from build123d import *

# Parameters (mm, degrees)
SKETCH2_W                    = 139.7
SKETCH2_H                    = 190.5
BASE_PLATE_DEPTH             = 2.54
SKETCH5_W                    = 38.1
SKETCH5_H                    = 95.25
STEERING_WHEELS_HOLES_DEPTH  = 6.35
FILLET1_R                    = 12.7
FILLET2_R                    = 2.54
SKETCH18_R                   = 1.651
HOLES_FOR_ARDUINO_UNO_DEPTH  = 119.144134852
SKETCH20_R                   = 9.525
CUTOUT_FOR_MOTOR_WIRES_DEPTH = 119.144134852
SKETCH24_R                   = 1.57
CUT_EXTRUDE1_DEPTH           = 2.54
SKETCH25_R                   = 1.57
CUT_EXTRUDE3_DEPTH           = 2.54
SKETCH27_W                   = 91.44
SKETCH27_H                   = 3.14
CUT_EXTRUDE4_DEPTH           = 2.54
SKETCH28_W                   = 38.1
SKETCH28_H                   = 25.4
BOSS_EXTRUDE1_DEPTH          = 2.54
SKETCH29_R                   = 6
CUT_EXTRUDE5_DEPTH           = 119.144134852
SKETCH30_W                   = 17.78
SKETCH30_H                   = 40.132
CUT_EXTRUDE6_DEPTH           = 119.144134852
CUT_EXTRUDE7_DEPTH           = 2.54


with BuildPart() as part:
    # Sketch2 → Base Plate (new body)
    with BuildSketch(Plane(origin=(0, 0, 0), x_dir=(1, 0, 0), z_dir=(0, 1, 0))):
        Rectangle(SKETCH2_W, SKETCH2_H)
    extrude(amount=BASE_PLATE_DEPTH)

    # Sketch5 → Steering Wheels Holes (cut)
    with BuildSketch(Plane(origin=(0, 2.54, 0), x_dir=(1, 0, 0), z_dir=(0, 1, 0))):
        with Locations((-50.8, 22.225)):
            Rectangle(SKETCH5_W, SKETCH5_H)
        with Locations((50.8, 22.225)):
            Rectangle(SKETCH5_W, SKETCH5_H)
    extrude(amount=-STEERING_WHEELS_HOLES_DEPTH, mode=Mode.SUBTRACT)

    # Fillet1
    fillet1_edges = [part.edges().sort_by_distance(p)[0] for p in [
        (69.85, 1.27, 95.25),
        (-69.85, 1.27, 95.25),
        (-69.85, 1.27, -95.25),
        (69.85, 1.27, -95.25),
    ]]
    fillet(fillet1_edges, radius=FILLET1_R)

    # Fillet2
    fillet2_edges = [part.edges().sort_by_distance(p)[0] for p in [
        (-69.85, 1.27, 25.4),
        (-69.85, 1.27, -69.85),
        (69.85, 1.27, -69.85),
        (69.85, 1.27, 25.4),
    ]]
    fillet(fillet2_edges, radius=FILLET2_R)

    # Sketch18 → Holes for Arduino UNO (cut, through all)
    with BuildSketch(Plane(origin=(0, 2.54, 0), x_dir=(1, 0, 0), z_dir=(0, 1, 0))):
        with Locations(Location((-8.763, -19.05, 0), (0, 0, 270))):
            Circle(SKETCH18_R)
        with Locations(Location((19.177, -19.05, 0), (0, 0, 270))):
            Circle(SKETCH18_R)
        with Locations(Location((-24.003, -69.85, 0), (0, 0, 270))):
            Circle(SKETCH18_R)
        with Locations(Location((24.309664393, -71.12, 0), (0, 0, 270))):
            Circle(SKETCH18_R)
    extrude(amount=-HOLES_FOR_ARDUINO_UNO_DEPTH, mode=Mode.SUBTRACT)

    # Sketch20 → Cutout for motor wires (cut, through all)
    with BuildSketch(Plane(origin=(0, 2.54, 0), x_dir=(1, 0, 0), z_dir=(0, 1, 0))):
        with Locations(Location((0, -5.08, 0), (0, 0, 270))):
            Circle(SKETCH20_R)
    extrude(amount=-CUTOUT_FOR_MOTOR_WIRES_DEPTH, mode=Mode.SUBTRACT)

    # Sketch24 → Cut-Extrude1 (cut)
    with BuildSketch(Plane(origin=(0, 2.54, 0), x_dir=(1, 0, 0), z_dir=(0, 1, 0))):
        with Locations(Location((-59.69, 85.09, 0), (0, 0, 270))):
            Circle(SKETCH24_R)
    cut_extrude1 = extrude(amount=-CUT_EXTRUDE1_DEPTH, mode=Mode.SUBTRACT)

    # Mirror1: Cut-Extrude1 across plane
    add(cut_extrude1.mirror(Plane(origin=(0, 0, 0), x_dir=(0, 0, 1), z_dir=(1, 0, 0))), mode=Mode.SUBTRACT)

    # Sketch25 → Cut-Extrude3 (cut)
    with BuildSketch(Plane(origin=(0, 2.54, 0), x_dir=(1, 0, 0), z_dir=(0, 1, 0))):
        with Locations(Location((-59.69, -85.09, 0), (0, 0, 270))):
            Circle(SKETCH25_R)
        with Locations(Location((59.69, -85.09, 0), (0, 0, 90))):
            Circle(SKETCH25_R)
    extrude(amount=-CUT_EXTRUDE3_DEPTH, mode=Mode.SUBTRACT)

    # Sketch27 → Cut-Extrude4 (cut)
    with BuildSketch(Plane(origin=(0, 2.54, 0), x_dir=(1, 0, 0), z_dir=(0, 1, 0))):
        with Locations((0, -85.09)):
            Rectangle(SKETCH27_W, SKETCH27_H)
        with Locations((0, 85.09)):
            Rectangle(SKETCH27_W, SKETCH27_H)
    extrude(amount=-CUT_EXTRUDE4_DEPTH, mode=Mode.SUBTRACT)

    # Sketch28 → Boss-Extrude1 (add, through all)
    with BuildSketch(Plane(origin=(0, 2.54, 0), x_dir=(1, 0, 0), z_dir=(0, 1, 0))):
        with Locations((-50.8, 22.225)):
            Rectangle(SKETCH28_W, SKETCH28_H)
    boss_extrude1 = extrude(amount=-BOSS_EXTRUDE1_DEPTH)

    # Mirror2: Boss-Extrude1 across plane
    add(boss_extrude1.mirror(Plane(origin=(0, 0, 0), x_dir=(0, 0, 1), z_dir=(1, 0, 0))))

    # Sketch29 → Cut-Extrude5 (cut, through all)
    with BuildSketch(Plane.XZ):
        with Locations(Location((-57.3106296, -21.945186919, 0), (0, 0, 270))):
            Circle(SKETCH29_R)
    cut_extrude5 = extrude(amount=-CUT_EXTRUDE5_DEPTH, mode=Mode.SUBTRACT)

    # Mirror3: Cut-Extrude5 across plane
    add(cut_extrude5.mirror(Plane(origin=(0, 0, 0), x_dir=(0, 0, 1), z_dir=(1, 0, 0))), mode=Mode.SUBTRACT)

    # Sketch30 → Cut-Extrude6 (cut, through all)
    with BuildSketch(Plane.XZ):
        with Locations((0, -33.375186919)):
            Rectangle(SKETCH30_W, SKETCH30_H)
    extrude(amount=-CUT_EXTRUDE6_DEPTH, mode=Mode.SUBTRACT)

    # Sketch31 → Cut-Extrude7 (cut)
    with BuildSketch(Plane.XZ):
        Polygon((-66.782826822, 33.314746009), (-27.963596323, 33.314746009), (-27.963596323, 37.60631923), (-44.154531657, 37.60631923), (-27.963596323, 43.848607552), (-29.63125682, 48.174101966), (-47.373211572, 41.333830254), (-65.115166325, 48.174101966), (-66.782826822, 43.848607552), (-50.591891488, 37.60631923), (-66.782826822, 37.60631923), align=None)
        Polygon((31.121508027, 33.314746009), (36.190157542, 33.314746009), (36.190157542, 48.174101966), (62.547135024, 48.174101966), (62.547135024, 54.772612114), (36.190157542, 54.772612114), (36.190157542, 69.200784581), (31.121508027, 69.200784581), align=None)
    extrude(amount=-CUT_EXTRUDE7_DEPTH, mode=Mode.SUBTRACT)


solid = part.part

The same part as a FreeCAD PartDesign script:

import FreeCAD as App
import Part
import Sketcher
from FreeCAD import Vector
Q = App.Units.Quantity


def edges_at(feature, points):
    """Names of the edges that pass closest to the given points."""
    edges = feature.Shape.Edges
    near = lambda p: min(range(len(edges)), key=lambda i: edges[i].distToShape(Part.Vertex(*p))[0])
    return sorted({f"Edge{near(p) + 1}" for p in points})


def add_polygon(sketch, points):
    """Adds a closed chain of lines whose ends are joined by coincident constraints."""
    first, n = sketch.GeometryCount, len(points)
    for a, b in zip(points, points[1:] + points[:1]):
        sketch.addGeometry(Part.LineSegment(App.Vector(*a, 0), App.Vector(*b, 0)), False)
    for i in range(n):
        sketch.addConstraint(Sketcher.Constraint("Coincident", first + i, 2, first + (i + 1) % n, 1))

doc = App.newDocument("Part")
body = doc.addObject("PartDesign::Body", "Body")

# Sketch on XZ plane
sketch1 = body.newObject("Sketcher::SketchObject", "Sketch")
sketch1.AttachmentSupport = (doc.getObject("XZ_Plane"), [""])
sketch1.MapMode = "FlatFace"
add_polygon(sketch1, [(-70, -95), (-70, 95), (70, 95), (70, -95)])  # lines 0-3
sketch1.addConstraint(Sketcher.Constraint("Vertical", 0))
sketch1.addConstraint(Sketcher.Constraint("Horizontal", 1))
sketch1.addConstraint(Sketcher.Constraint("Vertical", 2))
sketch1.addConstraint(Sketcher.Constraint("Horizontal", 3))
sketch1.addConstraint(Sketcher.Constraint("Symmetric", 0, 2, 2, 2, -1, 1))
sketch1.addConstraint(Sketcher.Constraint("DistanceX", 1, 1, 1, 2, Q("5.5 in")))
sketch1.addConstraint(Sketcher.Constraint("DistanceY", 0, 1, 0, 2, Q("7.5 in")))
pad1 = body.newObject("PartDesign::Pad", "Pad")
pad1.Profile = sketch1
pad1.Length = Q("0.1 in")
pad1.Reversed = True

# Sketch on XZ plane
sketch2 = body.newObject("Sketcher::SketchObject", "Sketch001")
sketch2.AttachmentSupport = (doc.getObject("XZ_Plane"), [""])
sketch2.MapMode = "FlatFace"
sketch2.AttachmentOffset = App.Placement(Vector(0, 0, -0.1 * 25.4), App.Rotation())
add_polygon(sketch2, [(-70, -70), (-70, 25), (-32, 25), (-32, -70)])  # lines 0-3
add_polygon(sketch2, [(32, -70), (32, 25), (70, 25), (70, -70)])  # lines 4-7
sketch2.addConstraint(Sketcher.Constraint("Vertical", 0))
sketch2.addConstraint(Sketcher.Constraint("Horizontal", 1))
sketch2.addConstraint(Sketcher.Constraint("Vertical", 2))
sketch2.addConstraint(Sketcher.Constraint("Horizontal", 3))
sketch2.addConstraint(Sketcher.Constraint("Vertical", 4))
sketch2.addConstraint(Sketcher.Constraint("Horizontal", 5))
sketch2.addConstraint(Sketcher.Constraint("Vertical", 6))
sketch2.addConstraint(Sketcher.Constraint("Horizontal", 7))
sketch2.addConstraint(Sketcher.Constraint("Symmetric", 1, 2, 4, 2, -2))
sketch2.addConstraint(Sketcher.Constraint("Symmetric", 3, 2, 6, 2, -2))
sketch2.addConstraint(Sketcher.Constraint("DistanceX", 1, 1, 1, 2, Q("1.5 in")))
sketch2.addConstraint(Sketcher.Constraint("DistanceY", -1, 1, 0, 2, Q("1 in")))
sketch2.addConstraint(Sketcher.Constraint("DistanceX", 0, 2, 4, 2, Q("4 in")))
sketch2.addConstraint(Sketcher.Constraint("DistanceY", 0, 1, 0, 2, Q("3.75 in")))
pocket1 = body.newObject("PartDesign::Pocket", "Pocket")
pocket1.Profile = sketch2
pocket1.Length = Q("0.25 in")
pocket1.Reversed = True
doc.recompute()

fillet = body.newObject("PartDesign::Fillet", "Fillet")
fillet.Base = (pocket1, edges_at(pocket1, [
    (69.85, 1.27, 95.25),
    (-69.85, 1.27, 95.25),
    (-69.85, 1.27, -95.25),
    (69.85, 1.27, -95.25),
]))
fillet.Radius = Q("0.5 in")
doc.recompute()

fillet2 = body.newObject("PartDesign::Fillet", "Fillet001")
fillet2.Base = (fillet, edges_at(fillet, [
    (-69.85, 1.27, 25.4),
    (-69.85, 1.27, -69.85),
    (69.85, 1.27, -69.85),
    (69.85, 1.27, 25.4),
]))
fillet2.Radius = Q("0.1 in")

# Sketch on XZ plane
sketch3 = body.newObject("Sketcher::SketchObject", "Sketch002")
sketch3.AttachmentSupport = (doc.getObject("XZ_Plane"), [""])
sketch3.MapMode = "FlatFace"
sketch3.AttachmentOffset = App.Placement(Vector(0, 0, -0.1 * 25.4), App.Rotation())
sketch3.addGeometry(Part.Circle(Vector(-8.8, 19.1, 0), Vector(0, 0, 1), 1.7), False)
sketch3.addGeometry(Part.Circle(Vector(19.2, 19.1, 0), Vector(0, 0, 1), 1.7), False)
sketch3.addGeometry(Part.Circle(Vector(-24, 69.8, 0), Vector(0, 0, 1), 1.7), False)
sketch3.addGeometry(Part.Circle(Vector(24.3, 71.1, 0), Vector(0, 0, 1), 1.7), False)
sketch3.addConstraint(Sketcher.Constraint("Equal", 0, 1))
sketch3.addConstraint(Sketcher.Constraint("Equal", 1, 2))
sketch3.addConstraint(Sketcher.Constraint("Equal", 2, 3))
sketch3.addConstraint(Sketcher.Constraint("Horizontal", 0, 3, 1, 3))
sketch3.addConstraint(Sketcher.Constraint("Diameter", 0, Q("0.13 in")))
sketch3.addConstraint(Sketcher.Constraint("DistanceY", 0, 3, 2, 3, Q("2 in")))
sketch3.addConstraint(Sketcher.Constraint("DistanceY", -1, 1, 3, 3, Q("2.8 in")))
sketch3.addConstraint(Sketcher.Constraint("DistanceX", 0, 3, 1, 3, Q("1.1 in")))
sketch3.addConstraint(Sketcher.Constraint("DistanceX", 2, 3, 0, 3, Q("0.6 in")))
sketch3.addConstraint(Sketcher.Constraint("DistanceY", -1, 1, 0, 3, Q("0.75 in")))
sketch3.addConstraint(Sketcher.Constraint("DistanceX", 0, 3, -1, 1, Q("0.345 in")))
sketch3.addConstraint(Sketcher.Constraint("DistanceX", -1, 1, 3, 3, Q("24.309664 mm")))
pocket2 = body.newObject("PartDesign::Pocket", "Pocket001")
pocket2.Profile = sketch3
pocket2.Type = "ThroughAll"
pocket2.Reversed = True

# Sketch on XZ plane
sketch4 = body.newObject("Sketcher::SketchObject", "Sketch003")
sketch4.AttachmentSupport = (doc.getObject("XZ_Plane"), [""])
sketch4.MapMode = "FlatFace"
sketch4.AttachmentOffset = App.Placement(Vector(0, 0, -0.1 * 25.4), App.Rotation())
sketch4.addGeometry(Part.Circle(Vector(0, 5, 0), Vector(0, 0, 1), 10), False)
sketch4.addConstraint(Sketcher.Constraint("PointOnObject", 0, 3, -2))
sketch4.addConstraint(Sketcher.Constraint("Diameter", 0, Q("0.75 in")))
sketch4.addConstraint(Sketcher.Constraint("DistanceY", -1, 1, 0, 3, Q("0.2 in")))
pocket3 = body.newObject("PartDesign::Pocket", "Pocket002")
pocket3.Profile = sketch4
pocket3.Type = "ThroughAll"
pocket3.Reversed = True

# Sketch on XZ plane
sketch5 = body.newObject("Sketcher::SketchObject", "Sketch004")
sketch5.AttachmentSupport = (doc.getObject("XZ_Plane"), [""])
sketch5.MapMode = "FlatFace"
sketch5.AttachmentOffset = App.Placement(Vector(0, 0, -0.1 * 25.4), App.Rotation())
sketch5.addGeometry(Part.Circle(Vector(-59.7, -85.1, 0), Vector(0, 0, 1), 1.6), False)
sketch5.addConstraint(Sketcher.Constraint("Diameter", 0, Q("3.14 mm")))
sketch5.addConstraint(Sketcher.Constraint("DistanceX", 0, 3, -1, 1, Q("2.35 in")))
sketch5.addConstraint(Sketcher.Constraint("DistanceY", 0, 3, -1, 1, Q("3.35 in")))
pocket4 = body.newObject("PartDesign::Pocket", "Pocket003")
pocket4.Profile = sketch5
pocket4.Length = Q("0.1 in")
pocket4.Reversed = True
doc.recompute()

mirrored = body.newObject("PartDesign::Mirrored", "Mirrored")
mirrored.Originals = [pocket4]
mirrored.MirrorPlane = (doc.getObject("YZ_Plane"), [""])
body.Tip = mirrored

# Sketch on XZ plane
sketch6 = body.newObject("Sketcher::SketchObject", "Sketch005")
sketch6.AttachmentSupport = (doc.getObject("XZ_Plane"), [""])
sketch6.MapMode = "FlatFace"
sketch6.AttachmentOffset = App.Placement(Vector(0, 0, -0.1 * 25.4), App.Rotation())
sketch6.addGeometry(Part.Circle(Vector(-59.7, 85.1, 0), Vector(0, 0, 1), 1.6), False)
sketch6.addGeometry(Part.Circle(Vector(59.7, 85.1, 0), Vector(0, 0, 1), 1.6), False)
sketch6.addConstraint(Sketcher.Constraint("Equal", 0, 1))
sketch6.addConstraint(Sketcher.Constraint("Symmetric", 0, 3, 1, 3, -2))
sketch6.addConstraint(Sketcher.Constraint("DistanceX", 0, 3, 1, 3, Q("4.7 in")))
sketch6.addConstraint(Sketcher.Constraint("Diameter", 0, Q("3.14 mm")))
sketch6.addConstraint(Sketcher.Constraint("DistanceY", -1, 1, 0, 3, Q("3.35 in")))
pocket5 = body.newObject("PartDesign::Pocket", "Pocket004")
pocket5.Profile = sketch6
pocket5.Length = Q("0.1 in")
pocket5.Reversed = True

# Sketch on XZ plane
sketch7 = body.newObject("Sketcher::SketchObject", "Sketch006")
sketch7.AttachmentSupport = (doc.getObject("XZ_Plane"), [""])
sketch7.MapMode = "FlatFace"
sketch7.AttachmentOffset = App.Placement(Vector(0, 0, -0.1 * 25.4), App.Rotation())
add_polygon(sketch7, [(-45.7, 83.5), (-45.7, 86.7), (45.7, 86.7), (45.7, 83.5)])  # lines 0-3
add_polygon(sketch7, [(-45.7, -86.7), (-45.7, -83.5), (45.7, -83.5), (45.7, -86.7)])  # lines 4-7
sketch7.addConstraint(Sketcher.Constraint("Vertical", 0))
sketch7.addConstraint(Sketcher.Constraint("Horizontal", 1))
sketch7.addConstraint(Sketcher.Constraint("Vertical", 2))
sketch7.addConstraint(Sketcher.Constraint("Horizontal", 3))
sketch7.addConstraint(Sketcher.Constraint("Vertical", 4))
sketch7.addConstraint(Sketcher.Constraint("Horizontal", 5))
sketch7.addConstraint(Sketcher.Constraint("Vertical", 6))
sketch7.addConstraint(Sketcher.Constraint("Horizontal", 7))
sketch7.addConstraint(Sketcher.Constraint("Symmetric", 2, 2, 4, 2, -1, 1))
sketch7.addConstraint(Sketcher.Constraint("Symmetric", 0, 2, 6, 2, -1, 1))
sketch7.addConstraint(Sketcher.Constraint("Vertical", 3, 2, 4, 2))
sketch7.addConstraint(Sketcher.Constraint("DistanceX", 1, 1, 1, 2, Q("3.6 in")))
sketch7.addConstraint(Sketcher.Constraint("DistanceY", 4, 2, 0, 2, Q("6.7 in")))
sketch7.addConstraint(Sketcher.Constraint("DistanceY", 0, 1, 0, 2, Q("3.14 mm")))
pocket6 = body.newObject("PartDesign::Pocket", "Pocket005")
pocket6.Profile = sketch7
pocket6.Length = Q("0.1 in")
pocket6.Reversed = True

# Sketch on XZ plane
sketch8 = body.newObject("Sketcher::SketchObject", "Sketch007")
sketch8.AttachmentSupport = (doc.getObject("XZ_Plane"), [""])
sketch8.MapMode = "FlatFace"
sketch8.AttachmentOffset = App.Placement(Vector(0, 0, -0.1 * 25.4), App.Rotation())
add_polygon(sketch8, [(-70, -35), (-70, -10), (-32, -10), (-32, -35)])  # lines 0-3
sketch8.addConstraint(Sketcher.Constraint("Vertical", 0))
sketch8.addConstraint(Sketcher.Constraint("Horizontal", 1))
sketch8.addConstraint(Sketcher.Constraint("Vertical", 2))
sketch8.addConstraint(Sketcher.Constraint("Horizontal", 3))
sketch8.addConstraint(Sketcher.Constraint("DistanceY", 0, 1, 0, 2, Q("1 in")))
sketch8.addConstraint(Sketcher.Constraint("DistanceX", 1, 1, 1, 2, Q("1.5 in")))
sketch8.addConstraint(Sketcher.Constraint("DistanceX", 0, 2, -1, 1, Q("2.75 in")))
sketch8.addConstraint(Sketcher.Constraint("DistanceY", 0, 2, -1, 1, Q("0.375 in")))
pad2 = body.newObject("PartDesign::Pad", "Pad001")
pad2.Profile = sketch8
pad2.Length = Q("0.1 in")
doc.recompute()

mirrored2 = body.newObject("PartDesign::Mirrored", "Mirrored001")
mirrored2.Originals = [pad2]
mirrored2.MirrorPlane = (doc.getObject("YZ_Plane"), [""])
body.Tip = mirrored2

# Sketch on XZ plane
sketch9 = body.newObject("Sketcher::SketchObject", "Sketch008")
sketch9.AttachmentSupport = (doc.getObject("XZ_Plane"), [""])
sketch9.MapMode = "FlatFace"
sketch9.addGeometry(Part.Circle(Vector(-57, -22, 0), Vector(0, 0, 1), 6), False)
sketch9.addConstraint(Sketcher.Constraint("Diameter", 0, Q("12 mm")))
sketch9.addConstraint(Sketcher.Constraint("DistanceX", 0, 3, -1, 1, Q("57.31063 mm")))
sketch9.addConstraint(Sketcher.Constraint("DistanceY", 0, 3, -1, 1, Q("21.945187 mm")))
pocket7 = body.newObject("PartDesign::Pocket", "Pocket006")
pocket7.Profile = sketch9
pocket7.Type = "ThroughAll"
doc.recompute()

mirrored3 = body.newObject("PartDesign::Mirrored", "Mirrored002")
mirrored3.Originals = [pocket7]
mirrored3.MirrorPlane = (doc.getObject("YZ_Plane"), [""])
body.Tip = mirrored3

# Sketch on XZ plane
sketch10 = body.newObject("Sketcher::SketchObject", "Sketch009")
sketch10.AttachmentSupport = (doc.getObject("XZ_Plane"), [""])
sketch10.MapMode = "FlatFace"
add_polygon(sketch10, [(-9, -13), (-9, -53), (9, -53), (9, -13)])  # lines 0-3
sketch10.addConstraint(Sketcher.Constraint("Vertical", 0))
sketch10.addConstraint(Sketcher.Constraint("Horizontal", 1))
sketch10.addConstraint(Sketcher.Constraint("Vertical", 2))
sketch10.addConstraint(Sketcher.Constraint("Horizontal", 3))
sketch10.addConstraint(Sketcher.Constraint("DistanceX", 1, 1, 1, 2, Q("0.7 in")))
sketch10.addConstraint(Sketcher.Constraint("DistanceY", 0, 2, 0, 1, Q("1.58 in")))
sketch10.addConstraint(Sketcher.Constraint("DistanceX", 0, 2, -1, 1, Q("0.35 in")))
sketch10.addConstraint(Sketcher.Constraint("DistanceY", 0, 2, -1, 1, Q("53.441187 mm")))
pocket8 = body.newObject("PartDesign::Pocket", "Pocket007")
pocket8.Profile = sketch10
pocket8.Type = "ThroughAll"

# Sketch on XZ plane
sketch11 = body.newObject("Sketcher::SketchObject", "Sketch010")
sketch11.AttachmentSupport = (doc.getObject("XZ_Plane"), [""])
sketch11.MapMode = "FlatFace"
add_polygon(sketch11, [(-66.8, 33.3), (-28, 33.3), (-28, 37.6), (-44.2, 37.6), (-28, 43.8), (-29.6, 48.2), (-47.4, 41.3), (-65.1, 48.2), (-66.8, 43.8), (-50.6, 37.6), (-66.8, 37.6)])  # lines 0-10
add_polygon(sketch11, [(31.1, 33.3), (36.2, 33.3), (36.2, 48.2), (62.5, 48.2), (62.5, 54.8), (36.2, 54.8), (36.2, 69.2), (31.1, 69.2)])  # lines 11-18
sketch11.addConstraint(Sketcher.Constraint("Horizontal", 0))
sketch11.addConstraint(Sketcher.Constraint("Vertical", 1))
sketch11.addConstraint(Sketcher.Constraint("Horizontal", 2))
sketch11.addConstraint(Sketcher.Constraint("Horizontal", 9))
sketch11.addConstraint(Sketcher.Constraint("Vertical", 10))
sketch11.addConstraint(Sketcher.Constraint("Horizontal", 11))
sketch11.addConstraint(Sketcher.Constraint("Vertical", 12))
sketch11.addConstraint(Sketcher.Constraint("Horizontal", 13))
sketch11.addConstraint(Sketcher.Constraint("Vertical", 14))
sketch11.addConstraint(Sketcher.Constraint("Horizontal", 15))
sketch11.addConstraint(Sketcher.Constraint("Vertical", 16))
sketch11.addConstraint(Sketcher.Constraint("Horizontal", 17))
sketch11.addConstraint(Sketcher.Constraint("Vertical", 18))
sketch11.addConstraint(Sketcher.Constraint("Perpendicular", 3, 4))
sketch11.addConstraint(Sketcher.Constraint("Perpendicular", 4, 5))
sketch11.addConstraint(Sketcher.Constraint("Perpendicular", 6, 7))
sketch11.addConstraint(Sketcher.Constraint("Perpendicular", 7, 8))
sketch11.addConstraint(Sketcher.Constraint("Horizontal", 4, 2, 6, 2))
sketch11.addConstraint(Sketcher.Constraint("Horizontal", 3, 2, 7, 2))
sketch11.addConstraint(Sketcher.Constraint("Horizontal", 2, 2, 8, 2))
sketch11.addConstraint(Sketcher.Constraint("Horizontal", 10, 2, 11, 2))
sketch11.addConstraint(Sketcher.Constraint("Horizontal", 6, 2, 12, 2))
sketch11.addConstraint(Sketcher.Constraint("Vertical", 1, 2, 3, 2))
sketch11.addConstraint(Sketcher.Constraint("Vertical", 7, 2, 9, 2))
sketch11.addConstraint(Sketcher.Constraint("Vertical", 12, 2, 15, 2))
sketch11.addConstraint(Sketcher.Constraint("Equal", 2, 9))
sketch11.addConstraint(Sketcher.Constraint("DistanceX", 0, 1, 0, 2, Q("38.81923 mm")))
sketch11.addConstraint(Sketcher.Constraint("DistanceX", 11, 1, 11, 2, Q("5.06865 mm")))
sketch11.addConstraint(Sketcher.Constraint("DistanceY", 14, 1, 14, 2, Q("6.59851 mm")))
sketch11.addConstraint(Sketcher.Constraint("DistanceY", 18, 2, 18, 1, Q("35.886039 mm")))
sketch11.addConstraint(Sketcher.Constraint("DistanceY", -1, 1, 4, 2, Q("48.174102 mm")))
sketch11.addConstraint(Sketcher.Constraint("DistanceX", 2, 2, 2, 1, Q("16.190935 mm")))
sketch11.addConstraint(Sketcher.Constraint("DistanceX", 13, 1, 13, 2, Q("26.356977 mm")))
sketch11.addConstraint(Sketcher.Constraint("DistanceY", 1, 1, 1, 2, Q("4.291573 mm")))
sketch11.addConstraint(Sketcher.Constraint("DistanceY", 12, 1, 12, 2, Q("14.859356 mm")))
sketch11.addConstraint(Sketcher.Constraint("DistanceX", 2, 2, -1, 1, Q("44.154532 mm")))
sketch11.addConstraint(Sketcher.Constraint("DistanceY", -1, 1, 5, 2, Q("41.33383 mm")))
sketch11.addConstraint(Sketcher.Constraint("DistanceX", -1, 1, 17, 2, Q("31.121508 mm")))
pocket9 = body.newObject("PartDesign::Pocket", "Pocket008")
pocket9.Profile = sketch11
pocket9.Length = Q("0.1 in")

doc.recompute()
